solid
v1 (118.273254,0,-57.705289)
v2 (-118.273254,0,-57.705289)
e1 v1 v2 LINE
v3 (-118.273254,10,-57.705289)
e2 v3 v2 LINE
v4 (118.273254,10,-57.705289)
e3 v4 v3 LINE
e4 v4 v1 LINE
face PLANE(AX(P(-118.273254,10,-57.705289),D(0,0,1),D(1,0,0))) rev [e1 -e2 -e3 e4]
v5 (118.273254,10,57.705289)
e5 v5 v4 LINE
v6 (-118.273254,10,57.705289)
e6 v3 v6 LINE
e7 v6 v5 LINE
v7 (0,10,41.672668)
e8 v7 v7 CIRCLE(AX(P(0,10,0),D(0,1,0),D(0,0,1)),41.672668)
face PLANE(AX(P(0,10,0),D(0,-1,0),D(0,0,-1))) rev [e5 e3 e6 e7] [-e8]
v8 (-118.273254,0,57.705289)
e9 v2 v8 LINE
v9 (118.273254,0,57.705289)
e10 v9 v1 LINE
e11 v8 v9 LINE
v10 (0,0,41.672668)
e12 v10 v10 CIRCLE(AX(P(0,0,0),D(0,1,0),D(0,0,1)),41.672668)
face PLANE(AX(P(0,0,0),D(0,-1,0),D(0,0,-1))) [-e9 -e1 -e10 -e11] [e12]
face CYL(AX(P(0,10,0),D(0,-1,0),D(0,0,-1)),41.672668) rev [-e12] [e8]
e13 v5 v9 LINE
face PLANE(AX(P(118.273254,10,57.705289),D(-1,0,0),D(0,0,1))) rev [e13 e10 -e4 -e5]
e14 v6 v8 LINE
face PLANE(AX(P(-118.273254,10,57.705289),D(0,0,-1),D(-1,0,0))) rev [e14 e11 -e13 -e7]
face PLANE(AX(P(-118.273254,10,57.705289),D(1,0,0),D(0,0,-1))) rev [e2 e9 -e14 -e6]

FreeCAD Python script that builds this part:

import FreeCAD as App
import Part
import Sketcher

V = App.Vector
Q = App.Units.Quantity

doc = App.newDocument("Part")
params = doc.addObject("Spreadsheet::Sheet", "Params")
for row, (alias, value) in enumerate([
    ("pad1_length", "10 mm"),
], start=1):
    params.set(f"A{row}", alias)
    params.set(f"B{row}", "=" + value)
    params.setAlias(f"B{row}", alias)

body = doc.addObject("PartDesign::Body", "Body")

# Sketch on XZ plane
sketch1 = body.newObject("Sketcher::SketchObject", "Sketch")
sketch1.AttachmentSupport = (doc.getObject("XZ_Plane"), [""])
sketch1.MapMode = "FlatFace"
sketch1.addGeometry(Part.LineSegment(V(-118, -58, 0), V(-118, 58, 0)), False)
sketch1.addGeometry(Part.LineSegment(V(-118, 58, 0), V(118, 58, 0)), False)
sketch1.addGeometry(Part.LineSegment(V(118, 58, 0), V(118, -58, 0)), False)
sketch1.addGeometry(Part.LineSegment(V(118, -58, 0), V(-118, -58, 0)), False)
sketch1.addGeometry(Part.Circle(V(0, 0, 0), V(0, 0, 1), 42), False)
sketch1.addConstraint(Sketcher.Constraint("Coincident", 0, 2, 1, 1))
sketch1.addConstraint(Sketcher.Constraint("Coincident", 1, 2, 2, 1))
sketch1.addConstraint(Sketcher.Constraint("Coincident", 2, 2, 3, 1))
sketch1.addConstraint(Sketcher.Constraint("Coincident", 3, 2, 0, 1))
sketch1.addConstraint(Sketcher.Constraint("Vertical", 0))
sketch1.addConstraint(Sketcher.Constraint("Horizontal", 1))
sketch1.addConstraint(Sketcher.Constraint("Vertical", 2))
sketch1.addConstraint(Sketcher.Constraint("Horizontal", 3))
sketch1.addConstraint(Sketcher.Constraint("Coincident", 4, 3, -1, 1))
sketch1.addConstraint(Sketcher.Constraint("Symmetric", 0, 2, 2, 2, -1, 1))
sketch1.addConstraint(Sketcher.Constraint("Diameter", 4, Q("83.345335 mm")))
sketch1.addConstraint(Sketcher.Constraint("DistanceX", 1, 1, 1, 2, Q("236.546508 mm")))
sketch1.addConstraint(Sketcher.Constraint("DistanceY", 0, 1, 0, 2, Q("115.410578 mm")))
pad1 = body.newObject("PartDesign::Pad", "Pad")
pad1.Profile = sketch1
pad1.setExpression("Length", "Params.pad1_length")
pad1.Reversed = True

doc.recompute()
